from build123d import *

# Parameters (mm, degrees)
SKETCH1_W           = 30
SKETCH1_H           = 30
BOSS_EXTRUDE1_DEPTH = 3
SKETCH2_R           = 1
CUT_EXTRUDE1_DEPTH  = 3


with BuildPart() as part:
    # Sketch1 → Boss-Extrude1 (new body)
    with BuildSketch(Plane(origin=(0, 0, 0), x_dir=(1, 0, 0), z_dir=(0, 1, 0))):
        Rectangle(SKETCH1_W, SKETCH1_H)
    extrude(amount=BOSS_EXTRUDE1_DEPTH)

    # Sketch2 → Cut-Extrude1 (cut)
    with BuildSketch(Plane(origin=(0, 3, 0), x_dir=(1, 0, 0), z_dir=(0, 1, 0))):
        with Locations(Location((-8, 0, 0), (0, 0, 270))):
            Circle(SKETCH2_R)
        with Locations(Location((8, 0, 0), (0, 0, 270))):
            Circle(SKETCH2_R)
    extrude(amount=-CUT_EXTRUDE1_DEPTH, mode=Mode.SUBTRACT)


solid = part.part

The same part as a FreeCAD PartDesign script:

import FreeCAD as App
import Part
import Sketcher


def add_polygon(sketch, points):
    """Adds a closed chain of lines whose ends are joined by coincident constraints."""
    first, n = sketch.GeometryCount, len(points)
    for a, b in zip(points, points[1:] + points[:1]):
        sketch.addGeometry(Part.LineSegment(App.Vector(*a, 0), App.Vector(*b, 0)), False)
    for i in range(n):
        sketch.addConstraint(Sketcher.Constraint("Coincident", first + i, 2, first + (i + 1) % n, 1))

doc = App.newDocument("Part")
body = doc.addObject("PartDesign::Body", "Body")

sketch1 = body.newObject("Sketcher::SketchObject", "Sketch")
sketch1.AttachmentSupport = (doc.getObject("XZ_Plane"), [""])
sketch1.MapMode = "FlatFace"
add_polygon(sketch1, [(-15, -15), (-15, 15), (15, 15), (15, -15)])
sketch1.addConstraint([
    Sketcher.Constraint("Vertical", 0),
    Sketcher.Constraint("Horizontal", 1),
    Sketcher.Constraint("Vertical", 2),
    Sketcher.Constraint("Horizontal", 3),
    Sketcher.Constraint("Symmetric", 0, 2, 2, 2, -1, 1),
    Sketcher.Constraint("Equal", 3, 0),
    Sketcher.Constraint("DistanceX", 1, 1, 1, 2, 30.0),
])
pad1 = body.newObject("PartDesign::Pad", "Pad")
pad1.Profile = sketch1
pad1.Length = 3
pad1.Reversed = True

sketch2 = body.newObject("Sketcher::SketchObject", "Sketch001")
sketch2.AttachmentSupport = (doc.getObject("XZ_Plane"), [""])
sketch2.MapMode = "FlatFace"
sketch2.AttachmentOffset = App.Placement(App.Vector(0, 0, -3), App.Rotation())
sketch2.addGeometry([
    Part.Circle(App.Vector(-8, 0, 0), App.Vector(0, 0, 1), 1),
    Part.Circle(App.Vector(8, 0, 0), App.Vector(0, 0, 1), 1),
], False)
sketch2.addConstraint([
    Sketcher.Constraint("Equal", 0, 1),
    Sketcher.Constraint("Symmetric", 0, 3, 1, 3, -1, 1),
    Sketcher.Constraint("PointOnObject", 0, 3, -1),
    Sketcher.Constraint("Diameter", 0, 2.0),
    Sketcher.Constraint("DistanceX", 0, 3, -1, 1, 8.0),
])
pocket1 = body.newObject("PartDesign::Pocket", "Pocket")
pocket1.Profile = sketch2
pocket1.Length = 3
pocket1.Reversed = True

doc.recompute()
